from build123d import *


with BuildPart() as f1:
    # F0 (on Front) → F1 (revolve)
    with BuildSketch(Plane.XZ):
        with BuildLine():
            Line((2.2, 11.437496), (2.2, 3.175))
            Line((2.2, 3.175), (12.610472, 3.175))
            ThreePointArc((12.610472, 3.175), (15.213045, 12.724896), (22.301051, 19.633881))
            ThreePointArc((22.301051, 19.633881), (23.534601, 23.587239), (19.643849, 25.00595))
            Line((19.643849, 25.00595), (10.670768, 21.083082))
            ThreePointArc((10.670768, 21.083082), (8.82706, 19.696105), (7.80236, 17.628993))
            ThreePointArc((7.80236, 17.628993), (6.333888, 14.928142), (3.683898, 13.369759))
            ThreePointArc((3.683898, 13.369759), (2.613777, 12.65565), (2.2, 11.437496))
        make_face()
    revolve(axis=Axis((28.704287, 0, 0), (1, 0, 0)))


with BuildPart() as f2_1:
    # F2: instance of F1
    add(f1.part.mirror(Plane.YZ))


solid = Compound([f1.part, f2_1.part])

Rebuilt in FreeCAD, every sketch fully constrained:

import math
import FreeCAD as App
import Part
import Sketcher
from FreeCAD import Vector
Q = App.Units.Quantity

doc = App.newDocument("Part")
body = doc.addObject("PartDesign::Body", "Body")

sketch1 = doc.addObject("Sketcher::SketchObject", "Sketch")
body.addObject(sketch1)
sketch1.AttachmentSupport = (doc.XZ_Plane, [""])
sketch1.MapMode = "FlatFace"
sketch1.addGeometry([
    Part.LineSegment(Vector(2.2, 11.4, 0), Vector(2.2, 3.2, 0)),
    Part.LineSegment(Vector(2.2, 3.2, 0), Vector(12.6, 3.2, 0)),
    Part.ArcOfCircle(Part.Circle(Vector(31.4, 3.2, 0), Vector(0, 0, 1), 18.8), math.radians(119), math.radians(180)),
    Part.ArcOfCircle(Part.Circle(Vector(20.8, 22.3, 0), Vector(0, 0, 1), 3), math.radians(-61), math.radians(114)),
    Part.LineSegment(Vector(19.6, 25, 0), Vector(10.7, 21.1, 0)),
    Part.ArcOfCircle(Part.Circle(Vector(12.7, 16.5, 0), Vector(0, 0, 1), 5), math.radians(114), math.radians(167)),
    Part.ArcOfCircle(Part.Circle(Vector(2.2, 18.9, 0), Vector(0, 0, 1), 5.8), math.radians(-75), math.radians(-13)),
    Part.ArcOfCircle(Part.Circle(Vector(4.2, 11.4, 0), Vector(0, 0, 1), 2), math.radians(105), math.radians(180)),
], False)
sketch1.addConstraint([
    Sketcher.Constraint("Coincident", 0, 2, 1, 1),
    Sketcher.Constraint("Coincident", 1, 2, 2, 2),
    Sketcher.Constraint("Tangent", 2, 1, 3, 1),
    Sketcher.Constraint("Tangent", 3, 2, 4, 1),
    Sketcher.Constraint("Tangent", 4, 2, 5, 1),
    Sketcher.Constraint("Tangent", 5, 2, 6, 2),
    Sketcher.Constraint("Tangent", 6, 1, 7, 1),
    Sketcher.Constraint("Tangent", 7, 2, 0, 1),
    Sketcher.Constraint("Vertical", 0),
    Sketcher.Constraint("Horizontal", 1),
    Sketcher.Constraint("Vertical", 6, 3, 0, 2),
    Sketcher.Constraint("Radius", 3, Q("3 mm")),
    Sketcher.Constraint("Radius", 5, Q("5 mm")),
    Sketcher.Constraint("Radius", 7, Q("1.999998 mm")),
    Sketcher.Constraint("DistanceX", -1, 1, 6, 3, Q("2.199999 mm")),
    Sketcher.Constraint("Radius", 6, Q("5.750402 mm")),
    Sketcher.Constraint("DistanceY", -1, 1, 0, 2, Q("3.175 mm")),
    Sketcher.Constraint("Radius", 2, Q("18.822516 mm")),
    Sketcher.Constraint("DistanceY", 6, 1, 5, 3, Q("3.132001 mm")),
    Sketcher.Constraint("DistanceX", 1, 1, 1, 2, Q("10.410472 mm")),
    Sketcher.Constraint("DistanceY", -1, 1, 6, 3, Q("18.925402 mm")),
    Sketcher.Constraint("DistanceY", 2, 3, 7, 3, Q("8.2625 mm")),
    Sketcher.Constraint("DistanceX", -1, 1, 3, 3, Q("20.845571 mm")),
])
revolution = doc.addObject("PartDesign::Revolution", "Revolution")
body.addObject(revolution)
revolution.Profile = sketch1
revolution.ReferenceAxis = (sketch1, ["H_Axis"])
revolution.Angle = 360
body2 = doc.addObject("PartDesign::Body", "Body001")
doc.recompute()

mirroring = doc.addObject("Part::Mirroring", "Mirroring")
mirroring.Source = body
mirroring.Base = Vector(0, 0, 0)
mirroring.Normal = Vector(1, 0, 0)
body2.BaseFeature = mirroring
doc.recompute()
mirroring.Visibility = False

doc.recompute()
